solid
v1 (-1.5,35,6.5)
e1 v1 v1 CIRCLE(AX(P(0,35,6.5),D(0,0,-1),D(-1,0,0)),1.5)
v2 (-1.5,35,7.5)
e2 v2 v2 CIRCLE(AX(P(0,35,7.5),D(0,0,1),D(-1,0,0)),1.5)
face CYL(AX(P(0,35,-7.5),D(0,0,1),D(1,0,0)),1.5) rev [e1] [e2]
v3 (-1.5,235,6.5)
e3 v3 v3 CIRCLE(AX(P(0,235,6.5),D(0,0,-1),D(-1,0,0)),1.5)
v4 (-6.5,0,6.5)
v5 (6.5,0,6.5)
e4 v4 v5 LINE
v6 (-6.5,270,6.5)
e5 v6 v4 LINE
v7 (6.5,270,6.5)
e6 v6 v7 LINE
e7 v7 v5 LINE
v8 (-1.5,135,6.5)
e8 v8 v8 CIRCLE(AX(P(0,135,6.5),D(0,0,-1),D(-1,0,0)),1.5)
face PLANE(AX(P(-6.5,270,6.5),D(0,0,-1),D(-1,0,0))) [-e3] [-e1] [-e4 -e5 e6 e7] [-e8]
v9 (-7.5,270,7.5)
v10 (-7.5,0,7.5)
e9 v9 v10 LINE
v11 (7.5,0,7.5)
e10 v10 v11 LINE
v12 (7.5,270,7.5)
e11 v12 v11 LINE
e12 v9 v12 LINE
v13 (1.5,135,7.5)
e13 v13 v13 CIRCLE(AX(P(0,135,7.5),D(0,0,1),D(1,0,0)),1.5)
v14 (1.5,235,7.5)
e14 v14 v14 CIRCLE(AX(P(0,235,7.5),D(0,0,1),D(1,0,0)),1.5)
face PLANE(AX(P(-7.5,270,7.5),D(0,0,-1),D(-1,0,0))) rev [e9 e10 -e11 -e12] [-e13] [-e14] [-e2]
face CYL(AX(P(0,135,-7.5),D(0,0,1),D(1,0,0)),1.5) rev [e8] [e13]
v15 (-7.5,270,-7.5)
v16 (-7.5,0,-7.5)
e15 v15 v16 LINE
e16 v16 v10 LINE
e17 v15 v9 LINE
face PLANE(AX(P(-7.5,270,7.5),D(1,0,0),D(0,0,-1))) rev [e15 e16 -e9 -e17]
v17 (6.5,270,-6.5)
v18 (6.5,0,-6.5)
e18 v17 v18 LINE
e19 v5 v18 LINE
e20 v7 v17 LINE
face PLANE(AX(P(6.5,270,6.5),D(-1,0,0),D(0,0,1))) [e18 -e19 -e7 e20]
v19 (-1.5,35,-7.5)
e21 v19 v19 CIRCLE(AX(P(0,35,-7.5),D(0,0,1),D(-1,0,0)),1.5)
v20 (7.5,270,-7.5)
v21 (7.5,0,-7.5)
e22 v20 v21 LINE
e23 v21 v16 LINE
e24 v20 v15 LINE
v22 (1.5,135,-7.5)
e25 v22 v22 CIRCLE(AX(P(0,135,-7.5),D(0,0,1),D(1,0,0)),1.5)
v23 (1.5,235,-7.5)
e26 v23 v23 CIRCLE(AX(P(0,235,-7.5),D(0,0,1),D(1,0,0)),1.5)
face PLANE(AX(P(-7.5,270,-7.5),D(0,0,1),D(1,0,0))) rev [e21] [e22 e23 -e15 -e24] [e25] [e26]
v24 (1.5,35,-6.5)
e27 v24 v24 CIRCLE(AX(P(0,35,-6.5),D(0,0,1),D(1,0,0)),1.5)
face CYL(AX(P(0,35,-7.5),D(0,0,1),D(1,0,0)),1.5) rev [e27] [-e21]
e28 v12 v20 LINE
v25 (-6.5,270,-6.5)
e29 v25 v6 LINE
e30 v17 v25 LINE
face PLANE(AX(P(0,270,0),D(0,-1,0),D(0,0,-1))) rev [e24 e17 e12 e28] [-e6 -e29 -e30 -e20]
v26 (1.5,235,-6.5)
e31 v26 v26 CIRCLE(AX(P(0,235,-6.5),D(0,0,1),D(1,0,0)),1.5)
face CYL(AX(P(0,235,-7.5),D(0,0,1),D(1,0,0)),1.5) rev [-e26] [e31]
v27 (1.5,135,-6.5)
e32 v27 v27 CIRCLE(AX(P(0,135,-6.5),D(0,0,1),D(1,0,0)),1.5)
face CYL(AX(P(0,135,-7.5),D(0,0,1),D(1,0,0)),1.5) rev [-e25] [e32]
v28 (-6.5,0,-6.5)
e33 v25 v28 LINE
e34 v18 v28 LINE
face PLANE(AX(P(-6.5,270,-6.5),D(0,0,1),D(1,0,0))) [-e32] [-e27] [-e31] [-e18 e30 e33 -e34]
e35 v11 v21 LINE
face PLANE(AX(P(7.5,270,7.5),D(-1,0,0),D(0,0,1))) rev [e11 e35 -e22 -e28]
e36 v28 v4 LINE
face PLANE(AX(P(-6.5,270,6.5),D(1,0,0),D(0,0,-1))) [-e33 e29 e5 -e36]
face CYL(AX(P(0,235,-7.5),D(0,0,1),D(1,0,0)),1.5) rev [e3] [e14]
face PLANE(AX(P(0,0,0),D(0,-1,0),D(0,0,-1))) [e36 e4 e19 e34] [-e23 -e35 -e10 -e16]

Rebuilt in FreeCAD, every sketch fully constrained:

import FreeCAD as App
import Part
import Sketcher
from FreeCAD import Vector
Q = App.Units.Quantity


def add_polygon(sketch, points):
    """Adds a closed chain of lines whose ends are joined by coincident constraints."""
    first, n = sketch.GeometryCount, len(points)
    for a, b in zip(points, points[1:] + points[:1]):
        sketch.addGeometry(Part.LineSegment(App.Vector(*a, 0), App.Vector(*b, 0)), False)
    for i in range(n):
        sketch.addConstraint(Sketcher.Constraint("Coincident", first + i, 2, first + (i + 1) % n, 1))

doc = App.newDocument("Part")
body = doc.addObject("PartDesign::Body", "Body")

sketch1 = body.newObject("Sketcher::SketchObject", "Sketch")
sketch1.AttachmentSupport = (doc.getObject("XZ_Plane"), [""])
sketch1.MapMode = "FlatFace"
add_polygon(sketch1, [(-8, -8), (-8, 8), (8, 8), (8, -8)])
add_polygon(sketch1, [(6, 6), (-6, 6), (-6, -6), (6, -6)])
sketch1.addConstraint([
    Sketcher.Constraint("Vertical", 0),
    Sketcher.Constraint("Horizontal", 1),
    Sketcher.Constraint("Vertical", 2),
    Sketcher.Constraint("Horizontal", 3),
    Sketcher.Constraint("Horizontal", 4),
    Sketcher.Constraint("Vertical", 5),
    Sketcher.Constraint("Horizontal", 6),
    Sketcher.Constraint("Vertical", 7),
    Sketcher.Constraint("Symmetric", 0, 2, 2, 2, -1, 1),
    Sketcher.Constraint("Symmetric", 4, 2, 6, 2, -1, 1),
    Sketcher.Constraint("Equal", 3, 0),
    Sketcher.Constraint("Equal", 6, 5),
    Sketcher.Constraint("DistanceX", 1, 1, 1, 2, Q("15 mm")),
    Sketcher.Constraint("DistanceX", 4, 2, 4, 1, Q("13 mm")),
])
pad1 = body.newObject("PartDesign::Pad", "Pad")
pad1.Profile = sketch1
pad1.Length = 270
pad1.Reversed = True

sketch2 = body.newObject("Sketcher::SketchObject", "Sketch001")
sketch2.AttachmentSupport = (doc.getObject("XY_Plane"), [""])
sketch2.MapMode = "FlatFace"
sketch2.AttachmentOffset = App.Placement(Vector(0, 0, 7.5), App.Rotation())
sketch2.addGeometry([
    Part.Circle(Vector(0, 235, 0), Vector(0, 0, 1), 1.5),
    Part.Circle(Vector(0, 35, 0), Vector(0, 0, 1), 1.5),
    Part.Circle(Vector(0, 135, 0), Vector(0, 0, 1), 1.5),
], False)
sketch2.addConstraint([
    Sketcher.Constraint("Equal", 0, 1),
    Sketcher.Constraint("Equal", 1, 2),
    Sketcher.Constraint("PointOnObject", 0, 3, -2),
    Sketcher.Constraint("PointOnObject", 1, 3, -2),
    Sketcher.Constraint("PointOnObject", 2, 3, -2),
    Sketcher.Constraint("Diameter", 0, Q("3 mm")),
    Sketcher.Constraint("DistanceY", -1, 1, 0, 3, Q("235 mm")),
    Sketcher.Constraint("DistanceY", -1, 1, 1, 3, Q("35 mm")),
    Sketcher.Constraint("DistanceY", -1, 1, 2, 3, Q("135 mm")),
])
pocket1 = body.newObject("PartDesign::Pocket", "Pocket")
pocket1.Profile = sketch2
pocket1.Type = "ThroughAll"

doc.recompute()
